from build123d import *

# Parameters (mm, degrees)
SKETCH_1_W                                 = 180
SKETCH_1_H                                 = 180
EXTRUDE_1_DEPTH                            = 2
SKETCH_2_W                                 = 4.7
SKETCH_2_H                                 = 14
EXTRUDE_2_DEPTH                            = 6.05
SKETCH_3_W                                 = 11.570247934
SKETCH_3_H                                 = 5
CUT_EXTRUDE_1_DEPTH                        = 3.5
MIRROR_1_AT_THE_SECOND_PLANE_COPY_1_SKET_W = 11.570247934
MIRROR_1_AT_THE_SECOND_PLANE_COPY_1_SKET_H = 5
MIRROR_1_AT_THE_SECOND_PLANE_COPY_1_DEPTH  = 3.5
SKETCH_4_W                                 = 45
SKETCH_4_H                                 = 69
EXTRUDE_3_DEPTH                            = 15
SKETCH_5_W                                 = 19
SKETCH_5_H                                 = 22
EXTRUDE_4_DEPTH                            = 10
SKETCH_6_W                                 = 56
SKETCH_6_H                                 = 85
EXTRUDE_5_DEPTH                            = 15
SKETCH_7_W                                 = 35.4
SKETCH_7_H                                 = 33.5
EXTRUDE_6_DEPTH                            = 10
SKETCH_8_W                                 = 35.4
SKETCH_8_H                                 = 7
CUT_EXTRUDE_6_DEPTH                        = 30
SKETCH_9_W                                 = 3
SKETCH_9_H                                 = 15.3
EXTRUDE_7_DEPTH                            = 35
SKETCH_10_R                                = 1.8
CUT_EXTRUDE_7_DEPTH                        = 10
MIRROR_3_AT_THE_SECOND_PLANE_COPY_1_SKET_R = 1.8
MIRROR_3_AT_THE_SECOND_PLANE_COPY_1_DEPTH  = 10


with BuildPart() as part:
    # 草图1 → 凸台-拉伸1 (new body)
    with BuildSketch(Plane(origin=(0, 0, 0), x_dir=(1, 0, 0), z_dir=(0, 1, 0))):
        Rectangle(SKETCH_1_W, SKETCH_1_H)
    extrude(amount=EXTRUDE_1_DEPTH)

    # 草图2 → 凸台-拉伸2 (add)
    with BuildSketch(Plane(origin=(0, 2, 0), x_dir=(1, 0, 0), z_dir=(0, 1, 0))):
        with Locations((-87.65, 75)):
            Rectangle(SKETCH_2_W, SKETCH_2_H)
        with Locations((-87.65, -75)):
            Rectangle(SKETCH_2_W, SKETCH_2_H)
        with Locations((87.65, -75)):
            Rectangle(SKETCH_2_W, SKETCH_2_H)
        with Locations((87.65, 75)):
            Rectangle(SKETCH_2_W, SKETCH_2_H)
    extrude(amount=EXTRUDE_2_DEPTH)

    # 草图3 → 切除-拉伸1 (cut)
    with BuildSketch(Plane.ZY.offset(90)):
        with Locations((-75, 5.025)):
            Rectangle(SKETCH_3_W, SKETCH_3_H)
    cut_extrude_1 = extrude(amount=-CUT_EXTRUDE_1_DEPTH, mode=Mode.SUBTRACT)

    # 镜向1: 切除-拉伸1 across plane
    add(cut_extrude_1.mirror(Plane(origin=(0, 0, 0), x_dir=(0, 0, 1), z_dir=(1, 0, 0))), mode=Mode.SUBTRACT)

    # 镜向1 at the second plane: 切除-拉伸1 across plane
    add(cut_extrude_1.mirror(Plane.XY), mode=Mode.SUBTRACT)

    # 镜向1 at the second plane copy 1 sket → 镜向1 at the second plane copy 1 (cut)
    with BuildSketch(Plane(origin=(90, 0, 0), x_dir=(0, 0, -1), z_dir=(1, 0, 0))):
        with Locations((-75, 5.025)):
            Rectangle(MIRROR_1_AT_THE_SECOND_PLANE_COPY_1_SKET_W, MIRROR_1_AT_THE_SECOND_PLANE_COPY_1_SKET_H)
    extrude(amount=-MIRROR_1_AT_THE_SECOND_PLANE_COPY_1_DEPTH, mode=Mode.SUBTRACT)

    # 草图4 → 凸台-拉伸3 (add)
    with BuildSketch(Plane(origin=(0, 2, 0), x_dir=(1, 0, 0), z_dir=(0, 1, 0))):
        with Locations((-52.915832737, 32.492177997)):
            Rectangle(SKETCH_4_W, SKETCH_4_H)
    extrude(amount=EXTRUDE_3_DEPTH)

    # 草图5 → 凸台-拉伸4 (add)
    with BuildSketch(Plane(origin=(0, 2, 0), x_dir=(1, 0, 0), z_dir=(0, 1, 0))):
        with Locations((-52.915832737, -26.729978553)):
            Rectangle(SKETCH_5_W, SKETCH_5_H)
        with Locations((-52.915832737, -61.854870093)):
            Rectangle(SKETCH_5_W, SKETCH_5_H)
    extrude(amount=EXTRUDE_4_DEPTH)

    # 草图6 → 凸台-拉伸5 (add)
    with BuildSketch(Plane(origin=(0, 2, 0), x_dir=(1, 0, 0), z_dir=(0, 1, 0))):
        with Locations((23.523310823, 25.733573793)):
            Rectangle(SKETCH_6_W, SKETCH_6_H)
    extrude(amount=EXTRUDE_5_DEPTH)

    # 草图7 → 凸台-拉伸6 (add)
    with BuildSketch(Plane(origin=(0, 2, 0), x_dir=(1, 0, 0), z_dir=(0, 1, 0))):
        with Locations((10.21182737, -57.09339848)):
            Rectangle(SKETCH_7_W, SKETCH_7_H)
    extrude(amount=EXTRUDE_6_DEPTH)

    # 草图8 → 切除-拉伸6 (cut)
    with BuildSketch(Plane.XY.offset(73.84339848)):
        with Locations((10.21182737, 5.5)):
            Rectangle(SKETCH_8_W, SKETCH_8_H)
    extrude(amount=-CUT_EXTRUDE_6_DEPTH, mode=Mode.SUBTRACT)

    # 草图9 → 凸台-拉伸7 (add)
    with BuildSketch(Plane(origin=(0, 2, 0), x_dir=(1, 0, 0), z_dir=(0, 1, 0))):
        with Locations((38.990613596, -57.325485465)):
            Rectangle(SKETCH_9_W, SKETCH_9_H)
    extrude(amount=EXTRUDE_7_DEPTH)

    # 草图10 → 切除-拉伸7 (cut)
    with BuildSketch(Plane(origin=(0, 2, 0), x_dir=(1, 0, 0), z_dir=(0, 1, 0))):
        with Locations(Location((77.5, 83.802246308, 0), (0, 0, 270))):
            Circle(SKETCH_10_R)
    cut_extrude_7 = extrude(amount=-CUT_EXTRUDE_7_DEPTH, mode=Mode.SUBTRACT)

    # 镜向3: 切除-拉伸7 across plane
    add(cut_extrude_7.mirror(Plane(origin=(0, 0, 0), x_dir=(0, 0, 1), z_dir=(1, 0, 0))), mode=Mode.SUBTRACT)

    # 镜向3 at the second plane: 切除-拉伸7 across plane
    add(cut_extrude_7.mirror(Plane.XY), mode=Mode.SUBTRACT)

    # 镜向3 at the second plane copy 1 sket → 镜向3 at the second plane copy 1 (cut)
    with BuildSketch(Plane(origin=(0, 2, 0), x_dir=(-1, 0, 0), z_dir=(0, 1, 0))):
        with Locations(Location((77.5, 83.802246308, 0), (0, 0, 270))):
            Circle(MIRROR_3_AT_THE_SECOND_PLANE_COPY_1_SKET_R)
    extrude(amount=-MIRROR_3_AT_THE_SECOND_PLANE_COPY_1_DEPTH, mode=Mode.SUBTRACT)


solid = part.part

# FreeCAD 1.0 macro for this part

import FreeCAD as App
import Part
import Sketcher

doc = App.newDocument("Part")
body = doc.addObject("PartDesign::Body", "Body")

# Sketch on XZ plane
sketch1 = doc.addObject("Sketcher::SketchObject", "Sketch")
body.addObject(sketch1)
sketch1.AttachmentSupport = (doc.XZ_Plane, [""])
sketch1.MapMode = "FlatFace"
sketch1.addGeometry([
    Part.LineSegment(App.Vector(-90, -90, 0), App.Vector(-90, 90, 0)),
    Part.LineSegment(App.Vector(-90, 90, 0), App.Vector(90, 90, 0)),
    Part.LineSegment(App.Vector(90, 90, 0), App.Vector(90, -90, 0)),
    Part.LineSegment(App.Vector(90, -90, 0), App.Vector(-90, -90, 0)),
], False)
sketch1.addConstraint([
    Sketcher.Constraint("Coincident", 0, 2, 1, 1),
    Sketcher.Constraint("Coincident", 1, 2, 2, 1),
    Sketcher.Constraint("Coincident", 2, 2, 3, 1),
    Sketcher.Constraint("Coincident", 3, 2, 0, 1),
    Sketcher.Constraint("Vertical", 0),
    Sketcher.Constraint("Horizontal", 1),
    Sketcher.Constraint("Vertical", 2),
    Sketcher.Constraint("Horizontal", 3),
    Sketcher.Constraint("Symmetric", 0, 2, 2, 2, -1, 1),
    Sketcher.Constraint("Equal", 3, 0),
    Sketcher.Constraint("DistanceX", 1, 1, 1, 2, 180.0),
])
pad1 = doc.addObject("PartDesign::Pad", "Pad")
body.addObject(pad1)
pad1.Profile = sketch1
pad1.Length = 2
pad1.Reversed = True

# Sketch on XZ plane
sketch2 = doc.addObject("Sketcher::SketchObject", "Sketch001")
body.addObject(sketch2)
sketch2.AttachmentSupport = (doc.XZ_Plane, [""])
sketch2.MapMode = "FlatFace"
sketch2.AttachmentOffset = App.Placement(App.Vector(0, 0, -2), App.Rotation())
sketch2.addGeometry([
    Part.LineSegment(App.Vector(-90, -82, 0), App.Vector(-90, -68, 0)),  # 0
    Part.LineSegment(App.Vector(-90, -68, 0), App.Vector(-85.3, -68, 0)),  # 1
    Part.LineSegment(App.Vector(-85.3, -68, 0), App.Vector(-85.3, -82, 0)),  # 2
    Part.LineSegment(App.Vector(-85.3, -82, 0), App.Vector(-90, -82, 0)),  # 3
    Part.LineSegment(App.Vector(-90, 68, 0), App.Vector(-90, 82, 0)),  # 4
    Part.LineSegment(App.Vector(-90, 82, 0), App.Vector(-85.3, 82, 0)),  # 5
    Part.LineSegment(App.Vector(-85.3, 82, 0), App.Vector(-85.3, 68, 0)),  # 6
    Part.LineSegment(App.Vector(-85.3, 68, 0), App.Vector(-90, 68, 0)),  # 7
    Part.LineSegment(App.Vector(85.3, 68, 0), App.Vector(85.3, 82, 0)),  # 8
    Part.LineSegment(App.Vector(85.3, 82, 0), App.Vector(90, 82, 0)),  # 9
    Part.LineSegment(App.Vector(90, 82, 0), App.Vector(90, 68, 0)),  # 10
    Part.LineSegment(App.Vector(90, 68, 0), App.Vector(85.3, 68, 0)),  # 11
    Part.LineSegment(App.Vector(85.3, -82, 0), App.Vector(85.3, -68, 0)),  # 12
    Part.LineSegment(App.Vector(85.3, -68, 0), App.Vector(90, -68, 0)),  # 13
    Part.LineSegment(App.Vector(90, -68, 0), App.Vector(90, -82, 0)),  # 14
    Part.LineSegment(App.Vector(90, -82, 0), App.Vector(85.3, -82, 0)),  # 15
], False)
sketch2.addConstraint([
    Sketcher.Constraint("Coincident", 0, 2, 1, 1),
    Sketcher.Constraint("Coincident", 1, 2, 2, 1),
    Sketcher.Constraint("Coincident", 2, 2, 3, 1),
    Sketcher.Constraint("Coincident", 3, 2, 0, 1),
    Sketcher.Constraint("Coincident", 4, 2, 5, 1),
    Sketcher.Constraint("Coincident", 5, 2, 6, 1),
    Sketcher.Constraint("Coincident", 6, 2, 7, 1),
    Sketcher.Constraint("Coincident", 7, 2, 4, 1),
    Sketcher.Constraint("Coincident", 8, 2, 9, 1),
    Sketcher.Constraint("Coincident", 9, 2, 10, 1),
    Sketcher.Constraint("Coincident", 10, 2, 11, 1),
    Sketcher.Constraint("Coincident", 11, 2, 8, 1),
    Sketcher.Constraint("Coincident", 12, 2, 13, 1),
    Sketcher.Constraint("Coincident", 13, 2, 14, 1),
    Sketcher.Constraint("Coincident", 14, 2, 15, 1),
    Sketcher.Constraint("Coincident", 15, 2, 12, 1),
    Sketcher.Constraint("Vertical", 0),
    Sketcher.Constraint("Horizontal", 1),
    Sketcher.Constraint("Vertical", 2),
    Sketcher.Constraint("Horizontal", 3),
    Sketcher.Constraint("Vertical", 4),
    Sketcher.Constraint("Horizontal", 5),
    Sketcher.Constraint("Vertical", 6),
    Sketcher.Constraint("Horizontal", 7),
    Sketcher.Constraint("Vertical", 8),
    Sketcher.Constraint("Horizontal", 9),
    Sketcher.Constraint("Vertical", 10),
    Sketcher.Constraint("Horizontal", 11),
    Sketcher.Constraint("Vertical", 12),
    Sketcher.Constraint("Horizontal", 13),
    Sketcher.Constraint("Vertical", 14),
    Sketcher.Constraint("Horizontal", 15),
    Sketcher.Constraint("Symmetric", 2, 2, 8, 2, -1, 1),
    Sketcher.Constraint("Symmetric", 0, 2, 10, 2, -1, 1),
    Sketcher.Constraint("Symmetric", 6, 2, 12, 2, -1, 1),
    Sketcher.Constraint("Symmetric", 4, 2, 14, 2, -1, 1),
    Sketcher.Constraint("Symmetric", 5, 2, 8, 2, -2),
    Sketcher.Constraint("Symmetric", 7, 2, 10, 2, -2),
    Sketcher.Constraint("DistanceY", 0, 1, 0, 2, 14.0),
    Sketcher.Constraint("DistanceX", 1, 1, 1, 2, 4.7),
    Sketcher.Constraint("DistanceX", 0, 2, -1, 1, 90.0),
    Sketcher.Constraint("DistanceY", 0, 2, -1, 1, 68.0),
])
pad2 = doc.addObject("PartDesign::Pad", "Pad001")
body.addObject(pad2)
pad2.Profile = sketch2
pad2.Length = 6.05
pad2.Reversed = True

# Sketch on YZ plane
sketch3 = doc.addObject("Sketcher::SketchObject", "Sketch002")
body.addObject(sketch3)
sketch3.AttachmentSupport = (doc.YZ_Plane, [""])
sketch3.MapMode = "FlatFace"
sketch3.AttachmentOffset = App.Placement(App.Vector(0, 0, -90), App.Rotation())
sketch3.addGeometry([
    Part.LineSegment(App.Vector(8, -81, 0), App.Vector(3, -81, 0)),
    Part.LineSegment(App.Vector(3, -81, 0), App.Vector(3, -69, 0)),
    Part.LineSegment(App.Vector(3, -69, 0), App.Vector(8, -69, 0)),
    Part.LineSegment(App.Vector(8, -69, 0), App.Vector(8, -81, 0)),
], False)
sketch3.addConstraint([
    Sketcher.Constraint("Coincident", 0, 2, 1, 1),
    Sketcher.Constraint("Coincident", 1, 2, 2, 1),
    Sketcher.Constraint("Coincident", 2, 2, 3, 1),
    Sketcher.Constraint("Coincident", 3, 2, 0, 1),
    Sketcher.Constraint("Horizontal", 0),
    Sketcher.Constraint("Vertical", 1),
    Sketcher.Constraint("Horizontal", 2),
    Sketcher.Constraint("Vertical", 3),
    Sketcher.Constraint("DistanceX", 0, 2, 0, 1, 5.0),
    Sketcher.Constraint("DistanceX", -1, 1, 0, 2, 2.525),
    Sketcher.Constraint("DistanceY", 1, 1, 1, 2, 11.570248),
    Sketcher.Constraint("DistanceY", 0, 2, -1, 1, 80.785124),
])
pocket1 = doc.addObject("PartDesign::Pocket", "Pocket")
body.addObject(pocket1)
pocket1.Profile = sketch3
pocket1.Length = 3.5
pocket1.Reversed = True
doc.recompute()

mirrored = doc.addObject("PartDesign::Mirrored", "Mirrored")
body.addObject(mirrored)
mirrored.Originals = [pocket1]
mirrored.MirrorPlane = (doc.YZ_Plane, [""])
body.Tip = mirrored
doc.recompute()

mirrored2 = doc.addObject("PartDesign::Mirrored", "Mirrored001")
body.addObject(mirrored2)
mirrored2.Originals = [pocket1]
mirrored2.MirrorPlane = (doc.XY_Plane, [""])
body.Tip = mirrored2

# Sketch on YZ plane
sketch4 = doc.addObject("Sketcher::SketchObject", "Sketch003")
body.addObject(sketch4)
sketch4.AttachmentSupport = (doc.YZ_Plane, [""])
sketch4.MapMode = "FlatFace"
sketch4.AttachmentOffset = App.Placement(App.Vector(0, 0, 90), App.Rotation())
sketch4.addGeometry([
    Part.LineSegment(App.Vector(8, 81, 0), App.Vector(3, 81, 0)),
    Part.LineSegment(App.Vector(3, 81, 0), App.Vector(3, 69, 0)),
    Part.LineSegment(App.Vector(3, 69, 0), App.Vector(8, 69, 0)),
    Part.LineSegment(App.Vector(8, 69, 0), App.Vector(8, 81, 0)),
], False)
sketch4.addConstraint([
    Sketcher.Constraint("Coincident", 0, 2, 1, 1),
    Sketcher.Constraint("Coincident", 1, 2, 2, 1),
    Sketcher.Constraint("Coincident", 2, 2, 3, 1),
    Sketcher.Constraint("Coincident", 3, 2, 0, 1),
    Sketcher.Constraint("Horizontal", 0),
    Sketcher.Constraint("Vertical", 1),
    Sketcher.Constraint("Horizontal", 2),
    Sketcher.Constraint("Vertical", 3),
    Sketcher.Constraint("DistanceX", 0, 2, 0, 1, 5.0),
    Sketcher.Constraint("DistanceX", -1, 1, 0, 2, 2.525),
    Sketcher.Constraint("DistanceY", 1, 2, 1, 1, 11.570248),
    Sketcher.Constraint("DistanceY", -1, 1, 0, 2, 80.785124),
])
pocket2 = doc.addObject("PartDesign::Pocket", "Pocket001")
body.addObject(pocket2)
pocket2.Profile = sketch4
pocket2.Length = 3.5

# Sketch on XZ plane
sketch5 = doc.addObject("Sketcher::SketchObject", "Sketch004")
body.addObject(sketch5)
sketch5.AttachmentSupport = (doc.XZ_Plane, [""])
sketch5.MapMode = "FlatFace"
sketch5.AttachmentOffset = App.Placement(App.Vector(0, 0, -2), App.Rotation())
sketch5.addGeometry([
    Part.LineSegment(App.Vector(-75, -67, 0), App.Vector(-75, 2, 0)),
    Part.LineSegment(App.Vector(-75, 2, 0), App.Vector(-30, 2, 0)),
    Part.LineSegment(App.Vector(-30, 2, 0), App.Vector(-30, -67, 0)),
    Part.LineSegment(App.Vector(-30, -67, 0), App.Vector(-75, -67, 0)),
], False)
sketch5.addConstraint([
    Sketcher.Constraint("Coincident", 0, 2, 1, 1),
    Sketcher.Constraint("Coincident", 1, 2, 2, 1),
    Sketcher.Constraint("Coincident", 2, 2, 3, 1),
    Sketcher.Constraint("Coincident", 3, 2, 0, 1),
    Sketcher.Constraint("Vertical", 0),
    Sketcher.Constraint("Horizontal", 1),
    Sketcher.Constraint("Vertical", 2),
    Sketcher.Constraint("Horizontal", 3),
    Sketcher.Constraint("DistanceX", 1, 1, 1, 2, 45.0),
    Sketcher.Constraint("DistanceY", 0, 1, 0, 2, 69.0),
    Sketcher.Constraint("DistanceX", 0, 2, -1, 1, 75.415833),
    Sketcher.Constraint("DistanceY", -1, 1, 0, 2, 2.007822),
])
pad3 = doc.addObject("PartDesign::Pad", "Pad002")
body.addObject(pad3)
pad3.Profile = sketch5
pad3.Length = 15
pad3.Reversed = True

# Sketch on XZ plane
sketch6 = doc.addObject("Sketcher::SketchObject", "Sketch005")
body.addObject(sketch6)
sketch6.AttachmentSupport = (doc.XZ_Plane, [""])
sketch6.MapMode = "FlatFace"
sketch6.AttachmentOffset = App.Placement(App.Vector(0, 0, -2), App.Rotation())
sketch6.addGeometry([
    Part.LineSegment(App.Vector(-62, 16, 0), App.Vector(-62, 38, 0)),  # 0
    Part.LineSegment(App.Vector(-62, 38, 0), App.Vector(-43, 38, 0)),  # 1
    Part.LineSegment(App.Vector(-43, 38, 0), App.Vector(-43, 16, 0)),  # 2
    Part.LineSegment(App.Vector(-43, 16, 0), App.Vector(-62, 16, 0)),  # 3
    Part.LineSegment(App.Vector(-62, 51, 0), App.Vector(-62, 73, 0)),  # 4
    Part.LineSegment(App.Vector(-62, 73, 0), App.Vector(-43, 73, 0)),  # 5
    Part.LineSegment(App.Vector(-43, 73, 0), App.Vector(-43, 51, 0)),  # 6
    Part.LineSegment(App.Vector(-43, 51, 0), App.Vector(-62, 51, 0)),  # 7
], False)
sketch6.addConstraint([
    Sketcher.Constraint("Coincident", 0, 2, 1, 1),
    Sketcher.Constraint("Coincident", 1, 2, 2, 1),
    Sketcher.Constraint("Coincident", 2, 2, 3, 1),
    Sketcher.Constraint("Coincident", 3, 2, 0, 1),
    Sketcher.Constraint("Coincident", 4, 2, 5, 1),
    Sketcher.Constraint("Coincident", 5, 2, 6, 1),
    Sketcher.Constraint("Coincident", 6, 2, 7, 1),
    Sketcher.Constraint("Coincident", 7, 2, 4, 1),
    Sketcher.Constraint("Vertical", 0),
    Sketcher.Constraint("Horizontal", 1),
    Sketcher.Constraint("Vertical", 2),
    Sketcher.Constraint("Horizontal", 3),
    Sketcher.Constraint("Vertical", 4),
    Sketcher.Constraint("Horizontal", 5),
    Sketcher.Constraint("Vertical", 6),
    Sketcher.Constraint("Horizontal", 7),
    Sketcher.Constraint("Vertical", 3, 2, 4, 2),
    Sketcher.Constraint("Vertical", 2, 2, 5, 2),
    Sketcher.Constraint("Equal", 2, 4),
    Sketcher.Constraint("DistanceX", 1, 1, 1, 2, 19.0),
    Sketcher.Constraint("DistanceY", 0, 1, 0, 2, 22.0),
    Sketcher.Constraint("DistanceY", -1, 1, 0, 2, 37.729979),
    Sketcher.Constraint("DistanceY", -1, 1, 4, 2, 72.85487),
    Sketcher.Constraint("DistanceX", 0, 2, -1, 1, 62.415833),
])
pad4 = doc.addObject("PartDesign::Pad", "Pad003")
body.addObject(pad4)
pad4.Profile = sketch6
pad4.Length = 10
pad4.Reversed = True

# Sketch on XZ plane
sketch7 = doc.addObject("Sketcher::SketchObject", "Sketch006")
body.addObject(sketch7)
sketch7.AttachmentSupport = (doc.XZ_Plane, [""])
sketch7.MapMode = "FlatFace"
sketch7.AttachmentOffset = App.Placement(App.Vector(0, 0, -2), App.Rotation())
sketch7.addGeometry([
    Part.LineSegment(App.Vector(-4, -68, 0), App.Vector(-4, 17, 0)),
    Part.LineSegment(App.Vector(-4, 17, 0), App.Vector(52, 17, 0)),
    Part.LineSegment(App.Vector(52, 17, 0), App.Vector(52, -68, 0)),
    Part.LineSegment(App.Vector(52, -68, 0), App.Vector(-4, -68, 0)),
], False)
sketch7.addConstraint([
    Sketcher.Constraint("Coincident", 0, 2, 1, 1),
    Sketcher.Constraint("Coincident", 1, 2, 2, 1),
    Sketcher.Constraint("Coincident", 2, 2, 3, 1),
    Sketcher.Constraint("Coincident", 3, 2, 0, 1),
    Sketcher.Constraint("Vertical", 0),
    Sketcher.Constraint("Horizontal", 1),
    Sketcher.Constraint("Vertical", 2),
    Sketcher.Constraint("Horizontal", 3),
    Sketcher.Constraint("DistanceX", 1, 1, 1, 2, 56.0),
    Sketcher.Constraint("DistanceY", 0, 1, 0, 2, 85.0),
    Sketcher.Constraint("DistanceX", 0, 2, -1, 1, 4.476689),
    Sketcher.Constraint("DistanceY", -1, 1, 0, 2, 16.766426),
])
pad5 = doc.addObject("PartDesign::Pad", "Pad004")
body.addObject(pad5)
pad5.Profile = sketch7
pad5.Length = 15
pad5.Reversed = True

# Sketch on XZ plane
sketch8 = doc.addObject("Sketcher::SketchObject", "Sketch007")
body.addObject(sketch8)
sketch8.AttachmentSupport = (doc.XZ_Plane, [""])
sketch8.MapMode = "FlatFace"
sketch8.AttachmentOffset = App.Placement(App.Vector(0, 0, -2), App.Rotation())
sketch8.addGeometry([
    Part.LineSegment(App.Vector(-7, 40, 0), App.Vector(-7, 74, 0)),
    Part.LineSegment(App.Vector(-7, 74, 0), App.Vector(28, 74, 0)),
    Part.LineSegment(App.Vector(28, 74, 0), App.Vector(28, 40, 0)),
    Part.LineSegment(App.Vector(28, 40, 0), App.Vector(-7, 40, 0)),
], False)
sketch8.addConstraint([
    Sketcher.Constraint("Coincident", 0, 2, 1, 1),
    Sketcher.Constraint("Coincident", 1, 2, 2, 1),
    Sketcher.Constraint("Coincident", 2, 2, 3, 1),
    Sketcher.Constraint("Coincident", 3, 2, 0, 1),
    Sketcher.Constraint("Vertical", 0),
    Sketcher.Constraint("Horizontal", 1),
    Sketcher.Constraint("Vertical", 2),
    Sketcher.Constraint("Horizontal", 3),
    Sketcher.Constraint("DistanceX", 1, 1, 1, 2, 35.4),
    Sketcher.Constraint("DistanceY", 0, 1, 0, 2, 33.5),
    Sketcher.Constraint("DistanceY", -1, 1, 0, 2, 73.843398),
    Sketcher.Constraint("DistanceX", 0, 2, -1, 1, 7.488173),
])
pad6 = doc.addObject("PartDesign::Pad", "Pad005")
body.addObject(pad6)
pad6.Profile = sketch8
pad6.Length = 10
pad6.Reversed = True

# Sketch on XY plane
sketch9 = doc.addObject("Sketcher::SketchObject", "Sketch008")
body.addObject(sketch9)
sketch9.AttachmentSupport = (doc.XY_Plane, [""])
sketch9.MapMode = "FlatFace"
sketch9.AttachmentOffset = App.Placement(App.Vector(0, 0, 73.843398), App.Rotation())
sketch9.addGeometry([
    Part.LineSegment(App.Vector(-7, 9, 0), App.Vector(-7, 2, 0)),
    Part.LineSegment(App.Vector(-7, 2, 0), App.Vector(28, 2, 0)),
    Part.LineSegment(App.Vector(28, 2, 0), App.Vector(28, 9, 0)),
    Part.LineSegment(App.Vector(28, 9, 0), App.Vector(-7, 9, 0)),
], False)
sketch9.addConstraint([
    Sketcher.Constraint("Coincident", 0, 2, 1, 1),
    Sketcher.Constraint("Coincident", 1, 2, 2, 1),
    Sketcher.Constraint("Coincident", 2, 2, 3, 1),
    Sketcher.Constraint("Coincident", 3, 2, 0, 1),
    Sketcher.Constraint("Vertical", 0),
    Sketcher.Constraint("Horizontal", 1),
    Sketcher.Constraint("Vertical", 2),
    Sketcher.Constraint("Horizontal", 3),
    Sketcher.Constraint("DistanceY", 0, 2, 0, 1, 7.0),
    Sketcher.Constraint("DistanceX", 1, 1, 1, 2, 35.4),
    Sketcher.Constraint("DistanceY", -1, 1, 0, 2, 2.0),
    Sketcher.Constraint("DistanceX", 0, 2, -1, 1, 7.488173),
])
pocket3 = doc.addObject("PartDesign::Pocket", "Pocket002")
body.addObject(pocket3)
pocket3.Profile = sketch9
pocket3.Length = 30

# Sketch on XZ plane
sketch10 = doc.addObject("Sketcher::SketchObject", "Sketch009")
body.addObject(sketch10)
sketch10.AttachmentSupport = (doc.XZ_Plane, [""])
sketch10.MapMode = "FlatFace"
sketch10.AttachmentOffset = App.Placement(App.Vector(0, 0, -2), App.Rotation())
sketch10.addGeometry([
    Part.LineSegment(App.Vector(37.5, 49.7, 0), App.Vector(37.5, 65, 0)),
    Part.LineSegment(App.Vector(37.5, 65, 0), App.Vector(40.5, 65, 0)),
    Part.LineSegment(App.Vector(40.5, 65, 0), App.Vector(40.5, 49.7, 0)),
    Part.LineSegment(App.Vector(40.5, 49.7, 0), App.Vector(37.5, 49.7, 0)),
], False)
sketch10.addConstraint([
    Sketcher.Constraint("Coincident", 0, 2, 1, 1),
    Sketcher.Constraint("Coincident", 1, 2, 2, 1),
    Sketcher.Constraint("Coincident", 2, 2, 3, 1),
    Sketcher.Constraint("Coincident", 3, 2, 0, 1),
    Sketcher.Constraint("Vertical", 0),
    Sketcher.Constraint("Horizontal", 1),
    Sketcher.Constraint("Vertical", 2),
    Sketcher.Constraint("Horizontal", 3),
    Sketcher.Constraint("DistanceX", 1, 1, 1, 2, 3.0),
    Sketcher.Constraint("DistanceY", 0, 1, 0, 2, 15.3),
    Sketcher.Constraint("DistanceX", -1, 1, 0, 2, 37.490614),
    Sketcher.Constraint("DistanceY", -1, 1, 0, 2, 64.975485),
])
pad7 = doc.addObject("PartDesign::Pad", "Pad006")
body.addObject(pad7)
pad7.Profile = sketch10
pad7.Length = 35
pad7.Reversed = True

# Sketch on XZ plane
sketch11 = doc.addObject("Sketcher::SketchObject", "Sketch010")
body.addObject(sketch11)
sketch11.AttachmentSupport = (doc.XZ_Plane, [""])
sketch11.MapMode = "FlatFace"
sketch11.AttachmentOffset = App.Placement(App.Vector(0, 0, -2), App.Rotation())
sketch11.addGeometry(Part.Circle(App.Vector(77.5, -83.8, 0), App.Vector(0, 0, 1), 1.8), False)
sketch11.addConstraint([
    Sketcher.Constraint("Diameter", 0, 3.6),
    Sketcher.Constraint("DistanceX", -1, 1, 0, 3, 77.5),
    Sketcher.Constraint("DistanceY", 0, 3, -1, 1, 83.802246),
])
pocket4 = doc.addObject("PartDesign::Pocket", "Pocket003")
body.addObject(pocket4)
pocket4.Profile = sketch11
pocket4.Length = 10
pocket4.Reversed = True
doc.recompute()

mirrored3 = doc.addObject("PartDesign::Mirrored", "Mirrored002")
body.addObject(mirrored3)
mirrored3.Originals = [pocket4]
mirrored3.MirrorPlane = (doc.YZ_Plane, [""])
body.Tip = mirrored3
doc.recompute()

mirrored4 = doc.addObject("PartDesign::Mirrored", "Mirrored003")
body.addObject(mirrored4)
mirrored4.Originals = [pocket4]
mirrored4.MirrorPlane = (doc.XY_Plane, [""])
body.Tip = mirrored4

# Sketch on XZ plane
sketch12 = doc.addObject("Sketcher::SketchObject", "Sketch011")
body.addObject(sketch12)
sketch12.AttachmentSupport = (doc.XZ_Plane, [""])
sketch12.MapMode = "FlatFace"
sketch12.AttachmentOffset = App.Placement(App.Vector(0, 0, -2), App.Rotation())
sketch12.addGeometry(Part.Circle(App.Vector(-77.5, 83.8, 0), App.Vector(0, 0, 1), 1.8), False)
sketch12.addConstraint([
    Sketcher.Constraint("Diameter", 0, 3.6),
    Sketcher.Constraint("DistanceX", 0, 3, -1, 1, 77.5),
    Sketcher.Constraint("DistanceY", -1, 1, 0, 3, 83.802246),
])
pocket5 = doc.addObject("PartDesign::Pocket", "Pocket004")
body.addObject(pocket5)
pocket5.Profile = sketch12
pocket5.Length = 10
pocket5.Reversed = True

doc.recompute()
